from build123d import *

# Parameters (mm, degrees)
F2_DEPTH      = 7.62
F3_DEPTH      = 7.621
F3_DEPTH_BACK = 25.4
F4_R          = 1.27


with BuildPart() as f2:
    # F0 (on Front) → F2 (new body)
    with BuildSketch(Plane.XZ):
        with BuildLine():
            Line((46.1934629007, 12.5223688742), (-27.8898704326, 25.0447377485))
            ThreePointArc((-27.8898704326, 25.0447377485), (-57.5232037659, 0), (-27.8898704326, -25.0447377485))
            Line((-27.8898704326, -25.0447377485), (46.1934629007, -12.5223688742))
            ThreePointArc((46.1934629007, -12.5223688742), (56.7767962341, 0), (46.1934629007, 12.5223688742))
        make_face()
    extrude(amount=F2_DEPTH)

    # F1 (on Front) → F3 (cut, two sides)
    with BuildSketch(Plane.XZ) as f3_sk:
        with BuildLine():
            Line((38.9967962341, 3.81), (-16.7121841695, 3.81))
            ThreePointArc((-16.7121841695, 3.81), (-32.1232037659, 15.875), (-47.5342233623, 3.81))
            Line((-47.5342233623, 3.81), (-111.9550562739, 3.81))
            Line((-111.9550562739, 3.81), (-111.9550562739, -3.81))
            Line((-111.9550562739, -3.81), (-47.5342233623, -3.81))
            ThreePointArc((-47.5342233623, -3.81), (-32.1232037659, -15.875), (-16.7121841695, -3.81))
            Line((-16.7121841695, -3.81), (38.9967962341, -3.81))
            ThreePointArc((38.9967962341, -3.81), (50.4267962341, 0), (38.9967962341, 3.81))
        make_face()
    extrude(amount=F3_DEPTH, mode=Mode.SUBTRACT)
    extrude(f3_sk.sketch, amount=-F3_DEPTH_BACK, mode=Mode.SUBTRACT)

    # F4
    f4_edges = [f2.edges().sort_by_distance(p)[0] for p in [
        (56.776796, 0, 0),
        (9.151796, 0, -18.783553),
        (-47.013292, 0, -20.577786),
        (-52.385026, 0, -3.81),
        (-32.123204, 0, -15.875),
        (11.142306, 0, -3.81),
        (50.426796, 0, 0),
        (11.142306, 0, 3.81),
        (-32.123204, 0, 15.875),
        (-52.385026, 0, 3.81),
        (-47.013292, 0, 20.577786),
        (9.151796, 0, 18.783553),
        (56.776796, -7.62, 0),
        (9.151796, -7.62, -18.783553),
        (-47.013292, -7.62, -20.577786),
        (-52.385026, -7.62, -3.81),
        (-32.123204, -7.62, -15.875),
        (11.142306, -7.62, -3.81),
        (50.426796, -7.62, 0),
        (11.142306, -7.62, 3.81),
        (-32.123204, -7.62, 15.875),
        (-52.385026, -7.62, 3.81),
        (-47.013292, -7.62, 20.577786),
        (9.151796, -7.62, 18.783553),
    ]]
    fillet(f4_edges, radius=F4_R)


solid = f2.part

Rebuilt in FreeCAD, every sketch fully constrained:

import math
import FreeCAD as App
import Part
import Sketcher
from FreeCAD import Vector
Q = App.Units.Quantity


def edges_at(feature, points):
    """Names of the edges that pass closest to the given points."""
    edges = feature.Shape.Edges
    near = lambda p: min(range(len(edges)), key=lambda i: edges[i].distToShape(Part.Vertex(*p))[0])
    return sorted({f"Edge{near(p) + 1}" for p in points})

doc = App.newDocument("Part")
body = doc.addObject("PartDesign::Body", "Body")

sketch1 = body.newObject("Sketcher::SketchObject", "Sketch")
sketch1.AttachmentSupport = (doc.getObject("XZ_Plane"), [""])
sketch1.MapMode = "FlatFace"
sketch1.addGeometry(Part.LineSegment(Vector(46, 13, 0), Vector(-28, 25, 0)), False)
sketch1.addGeometry(Part.ArcOfCircle(Part.Circle(Vector(-32, 0, 0), Vector(0, 0, 1), 25), math.radians(80), math.radians(280)), False)
sketch1.addGeometry(Part.LineSegment(Vector(-28, -25, 0), Vector(46, -13, 0)), False)
sketch1.addGeometry(Part.ArcOfCircle(Part.Circle(Vector(44, 0, 0), Vector(0, 0, 1), 13), math.radians(-80), math.radians(80)), False)
sketch1.addConstraint(Sketcher.Constraint("Tangent", 0, 2, 1, 1))
sketch1.addConstraint(Sketcher.Constraint("Tangent", 1, 2, 2, 1))
sketch1.addConstraint(Sketcher.Constraint("Tangent", 2, 2, 3, 1))
sketch1.addConstraint(Sketcher.Constraint("Tangent", 3, 2, 0, 1))
sketch1.addConstraint(Sketcher.Constraint("Symmetric", 0, 2, 1, 2, -1))
sketch1.addConstraint(Sketcher.Constraint("Radius", 1, Q("1 in")))
sketch1.addConstraint(Sketcher.Constraint("Radius", 3, Q("0.5 in")))
sketch1.addConstraint(Sketcher.Constraint("DistanceX", 1, 3, 3, 3, Q("3 in")))
sketch1.addConstraint(Sketcher.Constraint("DistanceX", 0, 2, -1, 1, 27.88987))
pad1 = body.newObject("PartDesign::Pad", "Pad")
pad1.Profile = sketch1
pad1.Length = Q("0.3 in")

sketch2 = body.newObject("Sketcher::SketchObject", "Sketch001")
sketch2.AttachmentSupport = (doc.getObject("XZ_Plane"), [""])
sketch2.MapMode = "FlatFace"
sketch2.addGeometry(Part.LineSegment(Vector(39, 4, 0), Vector(-17, 4, 0)), False)
sketch2.addGeometry(Part.ArcOfCircle(Part.Circle(Vector(-32, 0, 0), Vector(0, 0, 1), 16), math.radians(14), math.radians(166)), False)
sketch2.addGeometry(Part.LineSegment(Vector(-48, 4, 0), Vector(-112, 4, 0)), False)
sketch2.addGeometry(Part.LineSegment(Vector(-112, 4, 0), Vector(-112, -4, 0)), False)
sketch2.addGeometry(Part.LineSegment(Vector(-112, -4, 0), Vector(-48, -4, 0)), False)
sketch2.addGeometry(Part.ArcOfCircle(Part.Circle(Vector(-32, 0, 0), Vector(0, 0, 1), 16), math.radians(-166), math.radians(-14)), False)
sketch2.addGeometry(Part.LineSegment(Vector(-17, -4, 0), Vector(39, -4, 0)), False)
sketch2.addGeometry(Part.ArcOfCircle(Part.Circle(Vector(44, 0, 0), Vector(0, 0, 1), 6), math.radians(-143), math.radians(143)), False)
sketch2.addConstraint(Sketcher.Constraint("Coincident", 0, 2, 1, 1))
sketch2.addConstraint(Sketcher.Constraint("Coincident", 1, 2, 2, 1))
sketch2.addConstraint(Sketcher.Constraint("Coincident", 2, 2, 3, 1))
sketch2.addConstraint(Sketcher.Constraint("Coincident", 3, 2, 4, 1))
sketch2.addConstraint(Sketcher.Constraint("Coincident", 4, 2, 5, 1))
sketch2.addConstraint(Sketcher.Constraint("Coincident", 5, 2, 6, 1))
sketch2.addConstraint(Sketcher.Constraint("Coincident", 6, 2, 7, 1))
sketch2.addConstraint(Sketcher.Constraint("Coincident", 7, 2, 0, 1))
sketch2.addConstraint(Sketcher.Constraint("Horizontal", 0))
sketch2.addConstraint(Sketcher.Constraint("Horizontal", 2))
sketch2.addConstraint(Sketcher.Constraint("Vertical", 3))
sketch2.addConstraint(Sketcher.Constraint("Horizontal", 4))
sketch2.addConstraint(Sketcher.Constraint("Horizontal", 6))
sketch2.addConstraint(Sketcher.Constraint("Coincident", 5, 3, 1, 3))
sketch2.addConstraint(Sketcher.Constraint("Equal", 1, 5))
sketch2.addConstraint(Sketcher.Constraint("Symmetric", 1, 2, 4, 2, -1))
sketch2.addConstraint(Sketcher.Constraint("Symmetric", 6, 2, 7, 2, -1))
sketch2.addConstraint(Sketcher.Constraint("Horizontal", 0, 2, 1, 2))
sketch2.addConstraint(Sketcher.Constraint("Radius", 7, Q("0.25 in")))
sketch2.addConstraint(Sketcher.Constraint("DistanceY", 3, 2, 3, 1, Q("0.3 in")))
sketch2.addConstraint(Sketcher.Constraint("Radius", 1, Q("0.625 in")))
sketch2.addConstraint(Sketcher.Constraint("DistanceX", 1, 3, 7, 3, Q("3 in")))
sketch2.addConstraint(Sketcher.Constraint("DistanceX", 2, 2, 2, 1, 64.420833))
sketch2.addConstraint(Sketcher.Constraint("DistanceX", 1, 3, -1, 1, 32.123204))
pocket1 = body.newObject("PartDesign::Pocket", "Pocket")
pocket1.Profile = sketch2
pocket1.Type = "ThroughAll"
pocket1.Midplane = True
doc.recompute()

fillet = body.newObject("PartDesign::Fillet", "Fillet")
fillet.Base = (pocket1, edges_at(pocket1, [
    (56.777, 0, 0),
    (9.152, 0, -18.784),
    (-47.013, 0, -20.578),
    (-52.385, 0, -3.81),
    (-32.123, 0, -15.875),
    (11.142, 0, -3.81),
    (50.427, 0, 0),
    (11.142, 0, 3.81),
    (-32.123, 0, 15.875),
    (-52.385, 0, 3.81),
    (-47.013, 0, 20.578),
    (9.152, 0, 18.784),
    (56.777, -7.62, 0),
    (9.152, -7.62, -18.784),
    (-47.013, -7.62, -20.578),
    (-52.385, -7.62, -3.81),
    (-32.123, -7.62, -15.875),
    (11.142, -7.62, -3.81),
    (50.427, -7.62, 0),
    (11.142, -7.62, 3.81),
    (-32.123, -7.62, 15.875),
    (-52.385, -7.62, 3.81),
    (-47.013, -7.62, 20.578),
    (9.152, -7.62, 18.784),
]))
fillet.Radius = Q("0.05 in")

doc.recompute()
